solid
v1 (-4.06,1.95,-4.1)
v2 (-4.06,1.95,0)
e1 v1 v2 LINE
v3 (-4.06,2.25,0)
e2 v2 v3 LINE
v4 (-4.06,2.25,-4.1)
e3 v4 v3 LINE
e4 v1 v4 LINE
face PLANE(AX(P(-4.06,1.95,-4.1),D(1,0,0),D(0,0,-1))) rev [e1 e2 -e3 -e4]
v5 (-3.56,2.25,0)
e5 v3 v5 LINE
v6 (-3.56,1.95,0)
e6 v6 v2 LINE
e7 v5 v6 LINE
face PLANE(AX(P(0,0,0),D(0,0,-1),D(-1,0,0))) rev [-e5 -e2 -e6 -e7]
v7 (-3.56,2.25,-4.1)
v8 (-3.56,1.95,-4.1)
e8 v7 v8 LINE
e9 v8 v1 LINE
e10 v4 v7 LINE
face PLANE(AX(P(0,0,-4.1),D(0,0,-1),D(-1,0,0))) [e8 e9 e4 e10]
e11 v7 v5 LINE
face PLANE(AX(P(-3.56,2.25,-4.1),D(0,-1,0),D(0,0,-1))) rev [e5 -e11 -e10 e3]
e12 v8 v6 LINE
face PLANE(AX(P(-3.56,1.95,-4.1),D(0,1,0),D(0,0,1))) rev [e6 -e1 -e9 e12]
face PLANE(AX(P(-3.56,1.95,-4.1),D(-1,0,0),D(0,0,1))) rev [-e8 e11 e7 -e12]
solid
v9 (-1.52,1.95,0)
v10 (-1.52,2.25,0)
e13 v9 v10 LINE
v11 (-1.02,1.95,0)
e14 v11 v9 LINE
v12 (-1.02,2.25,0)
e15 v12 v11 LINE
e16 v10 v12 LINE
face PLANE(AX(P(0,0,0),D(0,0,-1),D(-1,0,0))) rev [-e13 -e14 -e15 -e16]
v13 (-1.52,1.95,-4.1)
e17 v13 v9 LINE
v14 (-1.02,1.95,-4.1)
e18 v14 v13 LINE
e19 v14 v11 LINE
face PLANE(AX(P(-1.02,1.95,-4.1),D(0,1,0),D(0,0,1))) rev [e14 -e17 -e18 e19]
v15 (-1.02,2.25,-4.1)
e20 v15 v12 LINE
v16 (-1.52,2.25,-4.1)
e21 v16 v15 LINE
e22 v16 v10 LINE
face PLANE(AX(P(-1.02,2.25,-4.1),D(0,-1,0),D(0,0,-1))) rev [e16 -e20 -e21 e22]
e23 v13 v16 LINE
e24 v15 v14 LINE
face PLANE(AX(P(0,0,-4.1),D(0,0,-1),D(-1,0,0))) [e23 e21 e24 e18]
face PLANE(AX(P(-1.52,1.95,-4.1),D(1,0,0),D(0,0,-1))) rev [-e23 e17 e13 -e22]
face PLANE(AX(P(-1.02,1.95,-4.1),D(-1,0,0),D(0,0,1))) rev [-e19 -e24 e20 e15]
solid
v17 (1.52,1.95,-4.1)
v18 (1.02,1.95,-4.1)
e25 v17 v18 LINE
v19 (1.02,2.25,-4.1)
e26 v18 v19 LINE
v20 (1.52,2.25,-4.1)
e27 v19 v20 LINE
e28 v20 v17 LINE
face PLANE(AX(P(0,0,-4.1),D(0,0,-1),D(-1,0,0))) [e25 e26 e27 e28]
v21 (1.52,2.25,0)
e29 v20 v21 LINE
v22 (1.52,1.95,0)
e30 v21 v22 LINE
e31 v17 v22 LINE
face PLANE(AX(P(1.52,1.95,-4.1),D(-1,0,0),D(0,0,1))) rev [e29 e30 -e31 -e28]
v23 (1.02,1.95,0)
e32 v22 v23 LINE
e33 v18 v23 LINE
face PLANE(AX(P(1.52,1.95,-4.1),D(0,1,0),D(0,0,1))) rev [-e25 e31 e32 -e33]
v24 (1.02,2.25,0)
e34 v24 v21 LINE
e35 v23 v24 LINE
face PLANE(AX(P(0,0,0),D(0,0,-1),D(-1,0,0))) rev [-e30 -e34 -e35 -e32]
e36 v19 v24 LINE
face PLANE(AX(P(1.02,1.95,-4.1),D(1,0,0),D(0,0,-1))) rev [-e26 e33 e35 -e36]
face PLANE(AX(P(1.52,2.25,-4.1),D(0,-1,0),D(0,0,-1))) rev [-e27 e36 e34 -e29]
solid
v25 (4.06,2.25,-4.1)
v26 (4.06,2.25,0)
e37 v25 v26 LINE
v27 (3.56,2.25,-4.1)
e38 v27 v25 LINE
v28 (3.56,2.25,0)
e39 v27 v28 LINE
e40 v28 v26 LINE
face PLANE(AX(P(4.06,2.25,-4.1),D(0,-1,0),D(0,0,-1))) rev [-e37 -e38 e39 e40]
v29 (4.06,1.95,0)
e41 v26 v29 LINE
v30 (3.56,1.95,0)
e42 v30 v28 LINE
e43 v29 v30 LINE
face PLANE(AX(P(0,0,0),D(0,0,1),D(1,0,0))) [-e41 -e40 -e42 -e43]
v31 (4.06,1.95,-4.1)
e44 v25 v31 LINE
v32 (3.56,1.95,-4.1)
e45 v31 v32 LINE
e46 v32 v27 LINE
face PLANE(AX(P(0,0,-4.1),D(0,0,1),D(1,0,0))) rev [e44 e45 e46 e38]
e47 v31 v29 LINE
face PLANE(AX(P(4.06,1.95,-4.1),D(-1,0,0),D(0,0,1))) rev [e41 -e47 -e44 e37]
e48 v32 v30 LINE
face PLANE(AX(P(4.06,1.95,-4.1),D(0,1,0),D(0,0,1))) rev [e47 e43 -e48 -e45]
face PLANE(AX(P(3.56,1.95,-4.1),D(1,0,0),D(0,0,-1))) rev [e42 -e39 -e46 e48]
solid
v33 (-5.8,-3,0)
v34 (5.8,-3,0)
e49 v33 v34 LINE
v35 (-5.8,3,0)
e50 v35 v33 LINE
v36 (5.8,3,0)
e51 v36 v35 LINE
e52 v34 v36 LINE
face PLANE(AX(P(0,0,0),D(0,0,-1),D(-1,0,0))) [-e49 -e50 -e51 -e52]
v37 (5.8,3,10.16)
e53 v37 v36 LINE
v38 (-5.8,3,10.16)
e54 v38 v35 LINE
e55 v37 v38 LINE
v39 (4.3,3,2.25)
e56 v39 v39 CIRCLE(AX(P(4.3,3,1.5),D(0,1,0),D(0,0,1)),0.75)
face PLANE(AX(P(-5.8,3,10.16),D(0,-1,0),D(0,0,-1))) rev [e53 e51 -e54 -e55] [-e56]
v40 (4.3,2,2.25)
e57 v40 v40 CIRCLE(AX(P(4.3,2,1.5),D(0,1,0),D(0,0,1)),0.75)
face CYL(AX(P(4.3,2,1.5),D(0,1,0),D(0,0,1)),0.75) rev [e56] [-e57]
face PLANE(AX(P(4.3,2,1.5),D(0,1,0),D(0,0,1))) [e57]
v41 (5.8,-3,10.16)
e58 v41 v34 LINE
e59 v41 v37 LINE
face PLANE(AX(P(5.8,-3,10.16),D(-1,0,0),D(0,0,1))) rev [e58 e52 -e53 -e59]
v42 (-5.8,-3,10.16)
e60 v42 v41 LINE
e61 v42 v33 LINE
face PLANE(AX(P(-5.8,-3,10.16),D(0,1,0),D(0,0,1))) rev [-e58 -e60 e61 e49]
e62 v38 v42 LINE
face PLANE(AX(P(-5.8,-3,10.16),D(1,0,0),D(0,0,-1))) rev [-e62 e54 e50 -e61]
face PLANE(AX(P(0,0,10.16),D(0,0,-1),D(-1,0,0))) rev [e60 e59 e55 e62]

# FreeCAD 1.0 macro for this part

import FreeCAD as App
import Part
import Sketcher

V = App.Vector

doc = App.newDocument("Part")
body = doc.addObject("PartDesign::Body", "Body")

# Sketch on XY plane
sketch1 = body.newObject("Sketcher::SketchObject", "Sketch")
sketch1.AttachmentSupport = (doc.getObject("XY_Plane"), [""])
sketch1.MapMode = "FlatFace"
sketch1.addGeometry(Part.LineSegment(V(-6, 3, 0), V(-6, -3, 0)), False)
sketch1.addGeometry(Part.LineSegment(V(-6, -3, 0), V(6, -3, 0)), False)
sketch1.addGeometry(Part.LineSegment(V(6, -3, 0), V(6, 3, 0)), False)
sketch1.addGeometry(Part.LineSegment(V(6, 3, 0), V(-6, 3, 0)), False)
sketch1.addConstraint(Sketcher.Constraint("Coincident", 0, 2, 1, 1))
sketch1.addConstraint(Sketcher.Constraint("Coincident", 1, 2, 2, 1))
sketch1.addConstraint(Sketcher.Constraint("Coincident", 2, 2, 3, 1))
sketch1.addConstraint(Sketcher.Constraint("Coincident", 3, 2, 0, 1))
sketch1.addConstraint(Sketcher.Constraint("Vertical", 0))
sketch1.addConstraint(Sketcher.Constraint("Horizontal", 1))
sketch1.addConstraint(Sketcher.Constraint("Vertical", 2))
sketch1.addConstraint(Sketcher.Constraint("Horizontal", 3))
sketch1.addConstraint(Sketcher.Constraint("Symmetric", 0, 2, 2, 2, -1, 1))
sketch1.addConstraint(Sketcher.Constraint("DistanceY", 0, 2, 0, 1, 6.0))
sketch1.addConstraint(Sketcher.Constraint("DistanceX", 1, 1, 1, 2, 11.6))
pad1 = body.newObject("PartDesign::Pad", "Pad")
pad1.Profile = sketch1
pad1.Length = 10.16

# Sketch on XZ plane
sketch2 = body.newObject("Sketcher::SketchObject", "Sketch001")
sketch2.AttachmentSupport = (doc.getObject("XZ_Plane"), [""])
sketch2.MapMode = "FlatFace"
sketch2.AttachmentOffset = App.Placement(V(0, 0, -3), App.Rotation())
sketch2.addGeometry(Part.Circle(V(4.3, 1.5, 0), V(0, 0, 1), 0.8), False)
sketch2.addConstraint(Sketcher.Constraint("Diameter", 0, 1.5))
sketch2.addConstraint(Sketcher.Constraint("DistanceX", -1, 1, 0, 3, 4.3))
sketch2.addConstraint(Sketcher.Constraint("DistanceY", -1, 1, 0, 3, 1.5))
pocket1 = body.newObject("PartDesign::Pocket", "Pocket")
pocket1.Profile = sketch2
pocket1.Length = 1
pocket1.Reversed = True
body2 = doc.addObject("PartDesign::Body", "Body001")

# Sketch on XY plane
sketch3 = body2.newObject("Sketcher::SketchObject", "Sketch002")
sketch3.AttachmentSupport = (doc.getObject("XY_Plane001"), [""])
sketch3.MapMode = "FlatFace"
sketch3.addGeometry(Part.LineSegment(V(1.52, 2.25, 0), V(1.52, 1.95, 0)), False)
sketch3.addGeometry(Part.LineSegment(V(1.52, 1.95, 0), V(1.02, 1.95, 0)), False)
sketch3.addGeometry(Part.LineSegment(V(1.02, 1.95, 0), V(1.02, 2.25, 0)), False)
sketch3.addGeometry(Part.LineSegment(V(1.02, 2.25, 0), V(1.52, 2.25, 0)), False)
sketch3.addConstraint(Sketcher.Constraint("Coincident", 0, 2, 1, 1))
sketch3.addConstraint(Sketcher.Constraint("Coincident", 1, 2, 2, 1))
sketch3.addConstraint(Sketcher.Constraint("Coincident", 2, 2, 3, 1))
sketch3.addConstraint(Sketcher.Constraint("Coincident", 3, 2, 0, 1))
sketch3.addConstraint(Sketcher.Constraint("Vertical", 0))
sketch3.addConstraint(Sketcher.Constraint("Horizontal", 1))
sketch3.addConstraint(Sketcher.Constraint("Vertical", 2))
sketch3.addConstraint(Sketcher.Constraint("Horizontal", 3))
sketch3.addConstraint(Sketcher.Constraint("DistanceX", 1, 2, 1, 1, 0.5))
sketch3.addConstraint(Sketcher.Constraint("DistanceY", 0, 2, 0, 1, 0.3))
sketch3.addConstraint(Sketcher.Constraint("DistanceX", -1, 1, 0, 2, 1.52))
sketch3.addConstraint(Sketcher.Constraint("DistanceY", -1, 1, 0, 2, 1.95))
pad2 = body2.newObject("PartDesign::Pad", "Pad001")
pad2.Profile = sketch3
pad2.Length = 4.1
pad2.Reversed = True
body3 = doc.addObject("PartDesign::Body", "Body002")

# Sketch on XY plane
sketch4 = body3.newObject("Sketcher::SketchObject", "Sketch003")
sketch4.AttachmentSupport = (doc.getObject("XY_Plane002"), [""])
sketch4.MapMode = "FlatFace"
sketch4.addGeometry(Part.LineSegment(V(4.06, 2.25, 0), V(4.06, 1.95, 0)), False)
sketch4.addGeometry(Part.LineSegment(V(4.06, 1.95, 0), V(3.56, 1.95, 0)), False)
sketch4.addGeometry(Part.LineSegment(V(3.56, 1.95, 0), V(3.56, 2.25, 0)), False)
sketch4.addGeometry(Part.LineSegment(V(3.56, 2.25, 0), V(4.06, 2.25, 0)), False)
sketch4.addConstraint(Sketcher.Constraint("Coincident", 0, 2, 1, 1))
sketch4.addConstraint(Sketcher.Constraint("Coincident", 1, 2, 2, 1))
sketch4.addConstraint(Sketcher.Constraint("Coincident", 2, 2, 3, 1))
sketch4.addConstraint(Sketcher.Constraint("Coincident", 3, 2, 0, 1))
sketch4.addConstraint(Sketcher.Constraint("Vertical", 0))
sketch4.addConstraint(Sketcher.Constraint("Horizontal", 1))
sketch4.addConstraint(Sketcher.Constraint("Vertical", 2))
sketch4.addConstraint(Sketcher.Constraint("Horizontal", 3))
sketch4.addConstraint(Sketcher.Constraint("DistanceX", 1, 2, 1, 1, 0.5))
sketch4.addConstraint(Sketcher.Constraint("DistanceY", 0, 2, 0, 1, 0.3))
sketch4.addConstraint(Sketcher.Constraint("DistanceX", -1, 1, 0, 2, 4.06))
sketch4.addConstraint(Sketcher.Constraint("DistanceY", -1, 1, 0, 2, 1.95))
pad3 = body3.newObject("PartDesign::Pad", "Pad002")
pad3.Profile = sketch4
pad3.Length = 4.1
pad3.Reversed = True
body4 = doc.addObject("PartDesign::Body", "Body003")

# Sketch on XY plane
sketch5 = body4.newObject("Sketcher::SketchObject", "Sketch004")
sketch5.AttachmentSupport = (doc.getObject("XY_Plane003"), [""])
sketch5.MapMode = "FlatFace"
sketch5.addGeometry(Part.LineSegment(V(-1.02, 2.25, 0), V(-1.02, 1.95, 0)), False)
sketch5.addGeometry(Part.LineSegment(V(-1.02, 1.95, 0), V(-1.52, 1.95, 0)), False)
sketch5.addGeometry(Part.LineSegment(V(-1.52, 1.95, 0), V(-1.52, 2.25, 0)), False)
sketch5.addGeometry(Part.LineSegment(V(-1.52, 2.25, 0), V(-1.02, 2.25, 0)), False)
sketch5.addConstraint(Sketcher.Constraint("Coincident", 0, 2, 1, 1))
sketch5.addConstraint(Sketcher.Constraint("Coincident", 1, 2, 2, 1))
sketch5.addConstraint(Sketcher.Constraint("Coincident", 2, 2, 3, 1))
sketch5.addConstraint(Sketcher.Constraint("Coincident", 3, 2, 0, 1))
sketch5.addConstraint(Sketcher.Constraint("Vertical", 0))
sketch5.addConstraint(Sketcher.Constraint("Horizontal", 1))
sketch5.addConstraint(Sketcher.Constraint("Vertical", 2))
sketch5.addConstraint(Sketcher.Constraint("Horizontal", 3))
sketch5.addConstraint(Sketcher.Constraint("DistanceX", 1, 2, 1, 1, 0.5))
sketch5.addConstraint(Sketcher.Constraint("DistanceY", 0, 2, 0, 1, 0.3))
sketch5.addConstraint(Sketcher.Constraint("DistanceX", 0, 2, -1, 1, 1.02))
sketch5.addConstraint(Sketcher.Constraint("DistanceY", -1, 1, 0, 2, 1.95))
pad4 = body4.newObject("PartDesign::Pad", "Pad003")
pad4.Profile = sketch5
pad4.Length = 4.1
pad4.Reversed = True
body5 = doc.addObject("PartDesign::Body", "Body004")

# Sketch on XY plane
sketch6 = body5.newObject("Sketcher::SketchObject", "Sketch005")
sketch6.AttachmentSupport = (doc.getObject("XY_Plane004"), [""])
sketch6.MapMode = "FlatFace"
sketch6.addGeometry(Part.LineSegment(V(-3.56, 2.25, 0), V(-3.56, 1.95, 0)), False)
sketch6.addGeometry(Part.LineSegment(V(-3.56, 1.95, 0), V(-4.06, 1.95, 0)), False)
sketch6.addGeometry(Part.LineSegment(V(-4.06, 1.95, 0), V(-4.06, 2.25, 0)), False)
sketch6.addGeometry(Part.LineSegment(V(-4.06, 2.25, 0), V(-3.56, 2.25, 0)), False)
sketch6.addConstraint(Sketcher.Constraint("Coincident", 0, 2, 1, 1))
sketch6.addConstraint(Sketcher.Constraint("Coincident", 1, 2, 2, 1))
sketch6.addConstraint(Sketcher.Constraint("Coincident", 2, 2, 3, 1))
sketch6.addConstraint(Sketcher.Constraint("Coincident", 3, 2, 0, 1))
sketch6.addConstraint(Sketcher.Constraint("Vertical", 0))
sketch6.addConstraint(Sketcher.Constraint("Horizontal", 1))
sketch6.addConstraint(Sketcher.Constraint("Vertical", 2))
sketch6.addConstraint(Sketcher.Constraint("Horizontal", 3))
sketch6.addConstraint(Sketcher.Constraint("DistanceX", 1, 2, 1, 1, 0.5))
sketch6.addConstraint(Sketcher.Constraint("DistanceY", 0, 2, 0, 1, 0.3))
sketch6.addConstraint(Sketcher.Constraint("DistanceX", 0, 2, -1, 1, 3.56))
sketch6.addConstraint(Sketcher.Constraint("DistanceY", -1, 1, 0, 2, 1.95))
pad5 = body5.newObject("PartDesign::Pad", "Pad004")
pad5.Profile = sketch6
pad5.Length = 4.1
pad5.Reversed = True

doc.recompute()
